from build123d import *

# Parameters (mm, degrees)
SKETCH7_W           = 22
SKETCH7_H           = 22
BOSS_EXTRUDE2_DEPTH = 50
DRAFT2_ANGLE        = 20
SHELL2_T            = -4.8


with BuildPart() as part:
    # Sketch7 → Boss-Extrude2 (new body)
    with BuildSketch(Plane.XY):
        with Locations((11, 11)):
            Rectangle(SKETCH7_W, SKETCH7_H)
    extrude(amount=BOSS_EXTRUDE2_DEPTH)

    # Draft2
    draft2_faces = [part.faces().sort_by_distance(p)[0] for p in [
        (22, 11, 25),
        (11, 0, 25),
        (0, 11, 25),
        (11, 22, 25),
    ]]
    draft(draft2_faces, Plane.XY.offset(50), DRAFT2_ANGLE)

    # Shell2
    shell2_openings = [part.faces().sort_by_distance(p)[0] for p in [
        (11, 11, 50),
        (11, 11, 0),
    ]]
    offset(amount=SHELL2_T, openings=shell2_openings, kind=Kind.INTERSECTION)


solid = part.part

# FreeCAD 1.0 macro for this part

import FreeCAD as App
import Part
import Sketcher
Q = App.Units.Quantity


def faces_at(feature, points):
    """Names of the faces that lie closest to the given points."""
    faces = feature.Shape.Faces
    near = lambda p: min(range(len(faces)), key=lambda i: faces[i].distToShape(Part.Vertex(*p))[0])
    return sorted({f"Face{near(p) + 1}" for p in points})


def add_polygon(sketch, points):
    """Adds a closed chain of lines whose ends are joined by coincident constraints."""
    first, n = sketch.GeometryCount, len(points)
    for a, b in zip(points, points[1:] + points[:1]):
        sketch.addGeometry(Part.LineSegment(App.Vector(*a, 0), App.Vector(*b, 0)), False)
    for i in range(n):
        sketch.addConstraint(Sketcher.Constraint("Coincident", first + i, 2, first + (i + 1) % n, 1))

doc = App.newDocument("Part")
body = doc.addObject("PartDesign::Body", "Body")

# Sketch on XY plane
sketch1 = body.newObject("Sketcher::SketchObject", "Sketch")
sketch1.AttachmentSupport = (doc.getObject("XY_Plane"), [""])
sketch1.MapMode = "FlatFace"
add_polygon(sketch1, [(0, 22), (0, 0), (22, 0), (22, 22)])  # lines 0-3
sketch1.addConstraint(Sketcher.Constraint("Vertical", 0))
sketch1.addConstraint(Sketcher.Constraint("Horizontal", 1))
sketch1.addConstraint(Sketcher.Constraint("Vertical", 2))
sketch1.addConstraint(Sketcher.Constraint("Horizontal", 3))
sketch1.addConstraint(Sketcher.Constraint("Coincident", 0, 2, -1, 1))
sketch1.addConstraint(Sketcher.Constraint("Equal", 3, 0))
sketch1.addConstraint(Sketcher.Constraint("DistanceX", 1, 1, 1, 2, Q("22 mm")))
pad1 = body.newObject("PartDesign::Pad", "Pad")
pad1.Profile = sketch1
pad1.Length = 50
doc.recompute()

datumplane = body.newObject("PartDesign::Plane", "DatumPlane")
datumplane.AttachmentSupport = (doc.getObject("XY_Plane"), [""])
datumplane.MapMode = "FlatFace"
datumplane.AttachmentOffset = App.Placement(App.Vector(0, 0, 50), App.Rotation())
draft = body.newObject("PartDesign::Draft", "Draft")
draft.Base = (pad1, faces_at(pad1, [
    (22, 11, 25),
    (11, 0, 25),
    (0, 11, 25),
    (11, 22, 25),
]))
draft.NeutralPlane = (datumplane, [""])
draft.Angle = 20
draft.Reversed = False
doc.recompute()

thickness = body.newObject("PartDesign::Thickness", "Thickness")
thickness.Base = (draft, faces_at(draft, [(11, 11, 50), (11, 11, 0)]))
thickness.Value = 4.8
thickness.Reversed = True
thickness.Join = "Intersection"

doc.recompute()
